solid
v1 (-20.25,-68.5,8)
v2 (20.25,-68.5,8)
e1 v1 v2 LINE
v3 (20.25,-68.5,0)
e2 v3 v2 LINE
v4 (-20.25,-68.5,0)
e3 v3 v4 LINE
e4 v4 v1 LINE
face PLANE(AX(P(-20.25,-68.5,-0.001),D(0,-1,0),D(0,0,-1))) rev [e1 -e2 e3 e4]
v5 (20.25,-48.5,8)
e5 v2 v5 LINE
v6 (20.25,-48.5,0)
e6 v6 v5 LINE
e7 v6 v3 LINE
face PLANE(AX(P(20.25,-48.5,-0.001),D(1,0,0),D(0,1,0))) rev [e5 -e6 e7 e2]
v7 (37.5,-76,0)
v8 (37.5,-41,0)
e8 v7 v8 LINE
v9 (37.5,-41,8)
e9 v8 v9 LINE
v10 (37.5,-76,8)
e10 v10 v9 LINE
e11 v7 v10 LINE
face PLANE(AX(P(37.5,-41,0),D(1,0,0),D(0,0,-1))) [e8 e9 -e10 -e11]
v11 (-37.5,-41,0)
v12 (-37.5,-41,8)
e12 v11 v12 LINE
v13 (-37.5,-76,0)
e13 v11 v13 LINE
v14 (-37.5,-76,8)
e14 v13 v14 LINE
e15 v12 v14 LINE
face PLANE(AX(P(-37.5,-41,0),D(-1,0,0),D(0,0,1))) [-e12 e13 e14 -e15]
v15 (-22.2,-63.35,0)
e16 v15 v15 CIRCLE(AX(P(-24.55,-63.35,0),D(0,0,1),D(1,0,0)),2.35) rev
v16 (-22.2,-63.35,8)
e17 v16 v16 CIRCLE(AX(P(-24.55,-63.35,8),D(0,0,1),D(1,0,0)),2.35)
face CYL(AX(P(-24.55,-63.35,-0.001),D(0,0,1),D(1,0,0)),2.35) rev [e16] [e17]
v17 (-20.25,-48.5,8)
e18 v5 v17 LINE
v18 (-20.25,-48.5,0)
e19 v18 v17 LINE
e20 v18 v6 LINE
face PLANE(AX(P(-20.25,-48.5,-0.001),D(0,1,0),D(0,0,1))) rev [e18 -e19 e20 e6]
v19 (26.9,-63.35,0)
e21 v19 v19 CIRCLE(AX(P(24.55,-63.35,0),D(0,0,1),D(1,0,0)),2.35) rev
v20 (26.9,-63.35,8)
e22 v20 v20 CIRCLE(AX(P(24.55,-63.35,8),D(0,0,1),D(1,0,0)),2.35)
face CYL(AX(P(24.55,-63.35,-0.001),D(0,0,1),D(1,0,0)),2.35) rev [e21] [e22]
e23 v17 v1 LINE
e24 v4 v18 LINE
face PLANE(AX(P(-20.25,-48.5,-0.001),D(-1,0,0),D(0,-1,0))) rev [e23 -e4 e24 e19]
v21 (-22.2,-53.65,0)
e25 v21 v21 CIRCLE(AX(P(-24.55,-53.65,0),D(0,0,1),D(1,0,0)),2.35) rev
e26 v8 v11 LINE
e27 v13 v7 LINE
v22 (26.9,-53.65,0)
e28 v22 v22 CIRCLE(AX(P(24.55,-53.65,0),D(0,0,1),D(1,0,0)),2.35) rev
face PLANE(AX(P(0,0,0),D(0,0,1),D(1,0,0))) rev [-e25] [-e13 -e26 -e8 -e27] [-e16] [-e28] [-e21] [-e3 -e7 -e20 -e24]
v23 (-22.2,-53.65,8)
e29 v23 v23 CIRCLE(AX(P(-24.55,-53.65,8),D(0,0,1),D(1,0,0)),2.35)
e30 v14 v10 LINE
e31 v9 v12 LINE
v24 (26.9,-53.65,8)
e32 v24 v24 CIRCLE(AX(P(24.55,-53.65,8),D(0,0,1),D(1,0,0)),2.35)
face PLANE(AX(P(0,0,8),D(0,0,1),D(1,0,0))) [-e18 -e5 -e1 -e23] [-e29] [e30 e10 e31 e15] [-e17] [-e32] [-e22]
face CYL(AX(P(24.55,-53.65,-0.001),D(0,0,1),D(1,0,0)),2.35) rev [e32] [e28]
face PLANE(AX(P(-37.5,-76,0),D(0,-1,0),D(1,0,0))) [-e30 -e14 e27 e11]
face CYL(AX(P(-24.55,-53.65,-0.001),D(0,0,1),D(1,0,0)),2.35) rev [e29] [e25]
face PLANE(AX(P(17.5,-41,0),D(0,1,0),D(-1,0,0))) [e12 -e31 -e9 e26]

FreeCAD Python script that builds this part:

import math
import FreeCAD as App
import Part
import Sketcher

V = App.Vector
Q = App.Units.Quantity


def add_polygon(sketch, points):
    """Adds a closed chain of lines whose ends are joined by coincident constraints."""
    first, n = sketch.GeometryCount, len(points)
    for a, b in zip(points, points[1:] + points[:1]):
        sketch.addGeometry(Part.LineSegment(App.Vector(*a, 0), App.Vector(*b, 0)), False)
    for i in range(n):
        sketch.addConstraint(Sketcher.Constraint("Coincident", first + i, 2, first + (i + 1) % n, 1))

doc = App.newDocument("Part")
body = doc.addObject("PartDesign::Body", "Body")

# Sketch on XY plane
sketch1 = body.newObject("Sketcher::SketchObject", "Sketch")
sketch1.AttachmentSupport = (doc.getObject("XY_Plane"), [""])
sketch1.MapMode = "FlatFace"
add_polygon(sketch1, [(-52, 33), (-52, -33), (52, -33), (52, 33)])  # lines 0-3
sketch1.addConstraint([
    Sketcher.Constraint("Vertical", 0),
    Sketcher.Constraint("Horizontal", 1),
    Sketcher.Constraint("Vertical", 2),
    Sketcher.Constraint("Horizontal", 3),
    Sketcher.Constraint("Symmetric", 0, 2, 2, 2, -1, 1),
    Sketcher.Constraint("DistanceX", 1, 1, 1, 2, 104.0),
    Sketcher.Constraint("DistanceY", 0, 2, 0, 1, 66.0),
])
pad1 = body.newObject("PartDesign::Pad", "Pad")
pad1.Profile = sketch1
pad1.Length = 8

# Sketch on XY plane
sketch2 = body.newObject("Sketcher::SketchObject", "Sketch001")
sketch2.AttachmentSupport = (doc.getObject("XY_Plane"), [""])
sketch2.MapMode = "FlatFace"
sketch2.AttachmentOffset = App.Placement(V(0, 0, 8), App.Rotation())
add_polygon(sketch2, [(-60, -17), (-52, -17), (-52, -7), (-60, -7), (-60, -2), (-64, -2), (-64, -22), (-60, -22)])  # lines 0-7
add_polygon(sketch2, [(-60, 13), (-52, 13), (-52, 23), (-60, 23), (-60, 28), (-64, 28), (-64, 8), (-60, 8)])  # lines 8-15
add_polygon(sketch2, [(52, -7), (52, -17), (60, -17), (60, -22), (64, -22), (64, -2), (60, -2), (60, -7)])  # lines 16-23
add_polygon(sketch2, [(-32.5, -33), (-32.5, -41), (-37.5, -41), (-37.5, -76), (37.5, -76), (37.5, -41), (32.5, -41), (32.5, -33), (17.5, -33), (17.5, -41), (-17.5, -41), (-17.5, -33)])  # lines 24-35
sketch2.addConstraint([
    Sketcher.Constraint("Horizontal", 0),
    Sketcher.Constraint("Vertical", 1),
    Sketcher.Constraint("Horizontal", 2),
    Sketcher.Constraint("Vertical", 3),
    Sketcher.Constraint("Horizontal", 4),
    Sketcher.Constraint("Vertical", 5),
    Sketcher.Constraint("Horizontal", 6),
    Sketcher.Constraint("Vertical", 7),
    Sketcher.Constraint("Horizontal", 8),
    Sketcher.Constraint("Vertical", 9),
    Sketcher.Constraint("Horizontal", 10),
    Sketcher.Constraint("Vertical", 11),
    Sketcher.Constraint("Horizontal", 12),
    Sketcher.Constraint("Vertical", 13),
    Sketcher.Constraint("Horizontal", 14),
    Sketcher.Constraint("Vertical", 15),
    Sketcher.Constraint("Vertical", 16),
    Sketcher.Constraint("Horizontal", 17),
    Sketcher.Constraint("Vertical", 18),
    Sketcher.Constraint("Horizontal", 19),
    Sketcher.Constraint("Vertical", 20),
    Sketcher.Constraint("Horizontal", 21),
    Sketcher.Constraint("Vertical", 22),
    Sketcher.Constraint("Horizontal", 23),
    Sketcher.Constraint("Vertical", 24),
    Sketcher.Constraint("Horizontal", 25),
    Sketcher.Constraint("Vertical", 26),
    Sketcher.Constraint("Horizontal", 27),
    Sketcher.Constraint("Vertical", 28),
    Sketcher.Constraint("Horizontal", 29),
    Sketcher.Constraint("Vertical", 30),
    Sketcher.Constraint("Horizontal", 31),
    Sketcher.Constraint("Vertical", 32),
    Sketcher.Constraint("Horizontal", 33),
    Sketcher.Constraint("Vertical", 34),
    Sketcher.Constraint("Horizontal", 35),
    Sketcher.Constraint("Symmetric", 0, 2, 16, 2, -2),
    Sketcher.Constraint("Symmetric", 6, 2, 18, 2, -2),
    Sketcher.Constraint("Symmetric", 4, 2, 20, 2, -2),
    Sketcher.Constraint("Symmetric", 2, 2, 22, 2, -2),
    Sketcher.Constraint("Symmetric", 25, 2, 28, 2, -2),
    Sketcher.Constraint("Symmetric", 31, 2, 34, 2, -2),
    Sketcher.Constraint("Horizontal", 29, 2, 32, 2),
    Sketcher.Constraint("Vertical", 3, 2, 6, 2),
    Sketcher.Constraint("Vertical", 1, 2, 8, 2),
    Sketcher.Constraint("Vertical", 7, 2, 10, 2),
    Sketcher.Constraint("Vertical", 5, 2, 12, 2),
    Sketcher.Constraint("Vertical", 11, 2, 14, 2),
    Sketcher.Constraint("Equal", 25, 29),
    Sketcher.Constraint("Equal", 29, 3),
    Sketcher.Constraint("Equal", 3, 7),
    Sketcher.Constraint("Equal", 1, 9),
    Sketcher.Constraint("Equal", 7, 11),
    Sketcher.Constraint("Equal", 5, 13),
    Sketcher.Constraint("Equal", 23, 24),
    Sketcher.Constraint("Equal", 33, 26),
    Sketcher.Constraint("DistanceX", 0, 1, 0, 2, 8.0),
    Sketcher.Constraint("DistanceX", 4, 2, 4, 1, 4.0),
    Sketcher.Constraint("DistanceX", 25, 2, 25, 1, 5.0),
    Sketcher.Constraint("DistanceX", 27, 1, 27, 2, 75.0),
    Sketcher.Constraint("DistanceX", 31, 2, 31, 1, 15.0),
    Sketcher.Constraint("DistanceY", 1, 1, 1, 2, 10.0),
    Sketcher.Constraint("DistanceX", 0, 2, -1, 1, 52.0),
    Sketcher.Constraint("DistanceY", 0, 2, -1, 1, 17.0),
    Sketcher.Constraint("DistanceY", -1, 1, 8, 2, 13.0),
    Sketcher.Constraint("DistanceY", 24, 2, -1, 1, 41.0),
])
pad2 = body.newObject("PartDesign::Pad", "Pad001")
pad2.Profile = sketch2
pad2.Length = 8
pad2.Reversed = True

# Sketch on XY plane
sketch3 = body.newObject("Sketcher::SketchObject", "Sketch002")
sketch3.AttachmentSupport = (doc.getObject("XY_Plane"), [""])
sketch3.MapMode = "FlatFace"
sketch3.AttachmentOffset = App.Placement(V(0, 0, 8), App.Rotation())
add_polygon(sketch3, [(-52, 33), (-52, 23), (52, 23), (52, 33)])  # lines 0-3
sketch3.addConstraint([
    Sketcher.Constraint("Vertical", 0),
    Sketcher.Constraint("Horizontal", 1),
    Sketcher.Constraint("Vertical", 2),
    Sketcher.Constraint("Horizontal", 3),
    Sketcher.Constraint("DistanceX", 1, 1, 1, 2, 104.0),
    Sketcher.Constraint("DistanceY", 0, 2, 0, 1, 10.0),
    Sketcher.Constraint("DistanceX", 0, 2, -1, 1, 52.0),
    Sketcher.Constraint("DistanceY", -1, 1, 0, 2, 23.0),
])
pocket1 = body.newObject("PartDesign::Pocket", "Pocket")
pocket1.Profile = sketch3
pocket1.Length = 8

# Sketch on XY plane
sketch4 = body.newObject("Sketcher::SketchObject", "Sketch003")
sketch4.AttachmentSupport = (doc.getObject("XY_Plane"), [""])
sketch4.MapMode = "FlatFace"
sketch4.AttachmentOffset = App.Placement(V(0, 0, 8), App.Rotation())
sketch4.addGeometry([
    Part.LineSegment(V(52, 0, 0), V(52, 17, 0)),  # 0
    Part.ArcOfCircle(Part.Circle(V(52, 28, 0), V(0, 0, 1), 11), math.radians(-89), math.radians(207)),  # 1
    Part.LineSegment(V(42, 23, 0), V(0, 23, 0)),  # 2
    Part.LineSegment(V(0, 23, 0), V(0, 0, 0)),  # 3
    Part.LineSegment(V(0, 0, 0), V(52, 0, 0)),  # 4
], False)
sketch4.addConstraint([
    Sketcher.Constraint("Coincident", 0, 2, 1, 1),
    Sketcher.Constraint("Coincident", 1, 2, 2, 1),
    Sketcher.Constraint("Coincident", 2, 2, 3, 1),
    Sketcher.Constraint("Coincident", 3, 2, 4, 1),
    Sketcher.Constraint("Coincident", 4, 2, 0, 1),
    Sketcher.Constraint("Vertical", 0),
    Sketcher.Constraint("Horizontal", 2),
    Sketcher.Constraint("Vertical", 3),
    Sketcher.Constraint("Horizontal", 4),
    Sketcher.Constraint("Coincident", 3, 2, -1, 1),
    Sketcher.Constraint("Radius", 1, 11.0),
    Sketcher.Constraint("DistanceX", 2, 2, 2, 1, 42.0),
    Sketcher.Constraint("DistanceX", 4, 1, 4, 2, 52.0),
    Sketcher.Constraint("DistanceY", 0, 1, 0, 2, 17.0),
    Sketcher.Constraint("DistanceY", 3, 2, 3, 1, 23.0),
])
pad3 = body.newObject("PartDesign::Pad", "Pad002")
pad3.Profile = sketch4
pad3.Length = 8
pad3.Reversed = True

# Sketch on XY plane
sketch5 = body.newObject("Sketcher::SketchObject", "Sketch004")
sketch5.AttachmentSupport = (doc.getObject("XY_Plane"), [""])
sketch5.MapMode = "FlatFace"
sketch5.AttachmentOffset = App.Placement(V(0, 0, 8), App.Rotation())
sketch5.addGeometry([
    Part.LineSegment(V(47.287664, 17.965775, 0), V(41.287664, 7.57347, 0)),
    Part.ArcOfCircle(Part.Circle(V(51.798897, 27.998162, 0), V(0, 0, 1), 22.970721), math.radians(-117.231873), math.radians(-89.498383)),
    Part.LineSegment(V(52, 5.028321, 0), V(52, 17, 0)),
    Part.ArcOfCircle(Part.Circle(V(51.798897, 27.998162, 0), V(0, 0, 1), 11), math.radians(-114.211876), math.radians(-88.952455)),
], False)
sketch5.addConstraint([
    Sketcher.Constraint("Coincident", 0, 2, 1, 1),
    Sketcher.Constraint("Coincident", 1, 2, 2, 1),
    Sketcher.Constraint("Coincident", 2, 2, 3, 2),
    Sketcher.Constraint("Coincident", 3, 1, 0, 1),
    Sketcher.Constraint("Vertical", 2),
    Sketcher.Constraint("Coincident", 3, 3, 1, 3),
    Sketcher.Constraint("Radius", 3, 11.0),
    Sketcher.Constraint("Angle", 0, Q("-120 deg")),
    Sketcher.Constraint("Distance", 0, 12.0),
    Sketcher.Constraint("DistanceX", -1, 1, 1, 2, 52.0),
    Sketcher.Constraint("DistanceY", -1, 1, 2, 2, 17.0),
    Sketcher.Constraint("Radius", 1, 22.970721),
    Sketcher.Constraint("DistanceY", 2, 1, 2, 2, 11.971679),
])
pocket2 = body.newObject("PartDesign::Pocket", "Pocket001")
pocket2.Profile = sketch5
pocket2.Length = 8

# Sketch on XY plane
sketch6 = body.newObject("Sketcher::SketchObject", "Sketch005")
sketch6.AttachmentSupport = (doc.getObject("XY_Plane"), [""])
sketch6.MapMode = "FlatFace"
sketch6.AttachmentOffset = App.Placement(V(0, 0, 8), App.Rotation())
sketch6.addGeometry(Part.Circle(V(51.8, 28, 0), V(0, 0, 1), 2.5), False)
sketch6.addConstraint([
    Sketcher.Constraint("Diameter", 0, 5.0),
    Sketcher.Constraint("DistanceY", -1, 1, 0, 3, 27.998162),
    Sketcher.Constraint("DistanceX", -1, 1, 0, 3, 51.798897),
])
pocket3 = body.newObject("PartDesign::Pocket", "Pocket002")
pocket3.Profile = sketch6
pocket3.Type = "ThroughAll"

# Sketch on XY plane
sketch7 = body.newObject("Sketcher::SketchObject", "Sketch006")
sketch7.AttachmentSupport = (doc.getObject("XY_Plane"), [""])
sketch7.MapMode = "FlatFace"
sketch7.AttachmentOffset = App.Placement(V(0, 0, 8), App.Rotation())
sketch7.addGeometry(Part.Circle(V(-24.6, -53.6, 0), V(0, 0, 1), 2.4), False)
sketch7.addConstraint([
    Sketcher.Constraint("Diameter", 0, 4.7),
    Sketcher.Constraint("DistanceX", 0, 3, -1, 1, 24.55),
    Sketcher.Constraint("DistanceY", 0, 3, -1, 1, 53.65),
])
pocket4 = body.newObject("PartDesign::Pocket", "Pocket003")
pocket4.Profile = sketch7
pocket4.Type = "UpToFirst"

# Sketch on XY plane
sketch8 = body.newObject("Sketcher::SketchObject", "Sketch007")
sketch8.AttachmentSupport = (doc.getObject("XY_Plane"), [""])
sketch8.MapMode = "FlatFace"
sketch8.AttachmentOffset = App.Placement(V(0, 0, 8), App.Rotation())
sketch8.addGeometry(Part.Circle(V(-24.6, -63.4, 0), V(0, 0, 1), 2.4), False)
sketch8.addConstraint([
    Sketcher.Constraint("Diameter", 0, 4.7),
    Sketcher.Constraint("DistanceX", 0, 3, -1, 1, 24.55),
    Sketcher.Constraint("DistanceY", 0, 3, -1, 1, 63.35),
])
pocket5 = body.newObject("PartDesign::Pocket", "Pocket004")
pocket5.Profile = sketch8
pocket5.Type = "UpToFirst"

# Sketch on XY plane
sketch9 = body.newObject("Sketcher::SketchObject", "Sketch008")
sketch9.AttachmentSupport = (doc.getObject("XY_Plane"), [""])
sketch9.MapMode = "FlatFace"
sketch9.AttachmentOffset = App.Placement(V(0, 0, 8), App.Rotation())
sketch9.addGeometry(Part.Circle(V(24.6, -63.4, 0), V(0, 0, 1), 2.4), False)
sketch9.addConstraint([
    Sketcher.Constraint("Diameter", 0, 4.7),
    Sketcher.Constraint("DistanceX", -1, 1, 0, 3, 24.55),
    Sketcher.Constraint("DistanceY", 0, 3, -1, 1, 63.35),
])
pocket6 = body.newObject("PartDesign::Pocket", "Pocket005")
pocket6.Profile = sketch9
pocket6.Type = "UpToFirst"

# Sketch on XY plane
sketch10 = body.newObject("Sketcher::SketchObject", "Sketch009")
sketch10.AttachmentSupport = (doc.getObject("XY_Plane"), [""])
sketch10.MapMode = "FlatFace"
sketch10.AttachmentOffset = App.Placement(V(0, 0, 8), App.Rotation())
sketch10.addGeometry(Part.Circle(V(24.6, -53.6, 0), V(0, 0, 1), 2.4), False)
sketch10.addConstraint([
    Sketcher.Constraint("Diameter", 0, 4.7),
    Sketcher.Constraint("DistanceX", -1, 1, 0, 3, 24.55),
    Sketcher.Constraint("DistanceY", 0, 3, -1, 1, 53.65),
])
pocket7 = body.newObject("PartDesign::Pocket", "Pocket006")
pocket7.Profile = sketch10
pocket7.Type = "UpToFirst"

# Sketch on XY plane
sketch11 = body.newObject("Sketcher::SketchObject", "Sketch010")
sketch11.AttachmentSupport = (doc.getObject("XY_Plane"), [""])
sketch11.MapMode = "FlatFace"
sketch11.AttachmentOffset = App.Placement(V(0, 0, 8), App.Rotation())
add_polygon(sketch11, [(-20, -48), (-20, -68), (20, -68), (20, -48)])  # lines 0-3
sketch11.addConstraint([
    Sketcher.Constraint("Vertical", 0),
    Sketcher.Constraint("Horizontal", 1),
    Sketcher.Constraint("Vertical", 2),
    Sketcher.Constraint("Horizontal", 3),
    Sketcher.Constraint("DistanceY", 0, 2, 0, 1, 20.0),
    Sketcher.Constraint("DistanceX", 1, 1, 1, 2, 40.5),
    Sketcher.Constraint("DistanceY", 0, 2, -1, 1, 68.5),
    Sketcher.Constraint("DistanceX", 0, 2, -1, 1, 20.25),
])
pocket8 = body.newObject("PartDesign::Pocket", "Pocket007")
pocket8.Profile = sketch11
pocket8.Type = "UpToFirst"

# Sketch on XY plane
sketch12 = body.newObject("Sketcher::SketchObject", "Sketch011")
sketch12.AttachmentSupport = (doc.getObject("XY_Plane"), [""])
sketch12.MapMode = "FlatFace"
sketch12.AttachmentOffset = App.Placement(V(0, 0, 8), App.Rotation())
add_polygon(sketch12, [(-64, 41), (-64, -41), (64, -41), (64, 41)])  # lines 0-3
sketch12.addConstraint([
    Sketcher.Constraint("Vertical", 0),
    Sketcher.Constraint("Horizontal", 1),
    Sketcher.Constraint("Vertical", 2),
    Sketcher.Constraint("Horizontal", 3),
    Sketcher.Constraint("Symmetric", 0, 2, 2, 2, -1, 1),
    Sketcher.Constraint("DistanceX", 1, 1, 1, 2, 128.0),
    Sketcher.Constraint("DistanceY", 0, 2, 0, 1, 82.0),
])
pocket9 = body.newObject("PartDesign::Pocket", "Pocket008")
pocket9.Profile = sketch12
pocket9.Type = "UpToFirst"

doc.recompute()
